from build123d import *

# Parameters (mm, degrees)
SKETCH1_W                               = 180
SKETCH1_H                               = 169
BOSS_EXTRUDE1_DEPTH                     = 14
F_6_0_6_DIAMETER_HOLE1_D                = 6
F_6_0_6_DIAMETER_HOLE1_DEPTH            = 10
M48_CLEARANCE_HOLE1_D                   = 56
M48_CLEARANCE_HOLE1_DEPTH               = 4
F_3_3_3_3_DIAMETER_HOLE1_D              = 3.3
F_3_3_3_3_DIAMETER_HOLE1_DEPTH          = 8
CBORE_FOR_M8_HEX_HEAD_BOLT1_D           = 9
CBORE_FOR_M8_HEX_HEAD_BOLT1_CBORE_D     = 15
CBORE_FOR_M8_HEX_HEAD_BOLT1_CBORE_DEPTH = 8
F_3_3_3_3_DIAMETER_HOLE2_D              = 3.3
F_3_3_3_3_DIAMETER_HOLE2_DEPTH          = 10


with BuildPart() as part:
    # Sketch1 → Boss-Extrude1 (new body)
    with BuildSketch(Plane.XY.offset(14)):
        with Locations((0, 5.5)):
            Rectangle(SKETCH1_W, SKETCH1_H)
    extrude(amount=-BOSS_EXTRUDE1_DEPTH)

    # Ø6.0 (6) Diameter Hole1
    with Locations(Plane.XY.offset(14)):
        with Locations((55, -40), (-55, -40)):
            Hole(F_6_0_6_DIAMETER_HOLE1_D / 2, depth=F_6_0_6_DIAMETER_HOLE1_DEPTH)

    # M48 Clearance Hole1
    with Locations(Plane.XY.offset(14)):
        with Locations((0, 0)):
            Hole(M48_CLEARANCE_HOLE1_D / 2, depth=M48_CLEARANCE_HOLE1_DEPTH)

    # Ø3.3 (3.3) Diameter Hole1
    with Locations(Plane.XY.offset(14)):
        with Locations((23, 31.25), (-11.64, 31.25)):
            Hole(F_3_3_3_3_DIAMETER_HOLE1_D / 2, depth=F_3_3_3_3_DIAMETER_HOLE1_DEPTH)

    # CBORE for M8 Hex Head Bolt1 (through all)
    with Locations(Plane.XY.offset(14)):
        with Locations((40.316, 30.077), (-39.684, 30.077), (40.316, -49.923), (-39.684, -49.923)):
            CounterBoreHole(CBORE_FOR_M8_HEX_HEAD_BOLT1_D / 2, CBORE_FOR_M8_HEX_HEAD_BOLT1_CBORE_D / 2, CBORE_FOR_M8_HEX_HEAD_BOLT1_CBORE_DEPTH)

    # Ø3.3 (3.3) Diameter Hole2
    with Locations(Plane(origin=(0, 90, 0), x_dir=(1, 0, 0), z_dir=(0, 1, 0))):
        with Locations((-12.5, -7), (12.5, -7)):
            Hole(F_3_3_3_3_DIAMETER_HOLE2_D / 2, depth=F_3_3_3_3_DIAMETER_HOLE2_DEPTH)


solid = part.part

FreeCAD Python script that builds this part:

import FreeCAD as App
import Part
import Sketcher
Q = App.Units.Quantity

doc = App.newDocument("Part")
params = doc.addObject("Spreadsheet::Sheet", "Params")
for row, (alias, value) in enumerate([
    ("sketch1_width", "180 mm"),
    ("sketch1_height", "169 mm"),
    ("pad1_length", "14 mm"),
    ("sketch2_diameter", "6 mm"),
    ("hole_diameter", "6 mm"),
    ("hole_depth", "10 mm"),
    ("sketch3_diameter", "56 mm"),
    ("hole2_diameter", "56 mm"),
    ("hole2_depth", "4 mm"),
    ("sketch4_diameter", "3.3 mm"),
    ("hole3_diameter", "3.3 mm"),
    ("hole3_depth", "8 mm"),
    ("sketch5_diameter", "9 mm"),
    ("hole4_diameter", "9 mm"),
    ("hole4_cbore_diameter", "15 mm"),
    ("hole4_cbore_depth", "8 mm"),
    ("sketch6_diameter", "3.3 mm"),
    ("hole5_diameter", "3.3 mm"),
    ("hole5_depth", "10 mm"),
], start=1):
    params.set(f"A{row}", alias)
    params.set(f"B{row}", "=" + value)
    params.setAlias(f"B{row}", alias)

body = doc.addObject("PartDesign::Body", "Body")

sketch1 = body.newObject("Sketcher::SketchObject", "Sketch")
sketch1.AttachmentSupport = (doc.getObject("XY_Plane"), [""])
sketch1.MapMode = "FlatFace"
sketch1.AttachmentOffset = App.Placement(App.Vector(0, 0, 14), App.Rotation())
sketch1.addGeometry([
    Part.LineSegment(App.Vector(-90, 90, 0), App.Vector(-90, -79, 0)),
    Part.LineSegment(App.Vector(-90, -79, 0), App.Vector(90, -79, 0)),
    Part.LineSegment(App.Vector(90, -79, 0), App.Vector(90, 90, 0)),
    Part.LineSegment(App.Vector(90, 90, 0), App.Vector(-90, 90, 0)),
], False)
sketch1.addConstraint([
    Sketcher.Constraint("Coincident", 0, 2, 1, 1),
    Sketcher.Constraint("Coincident", 1, 2, 2, 1),
    Sketcher.Constraint("Coincident", 2, 2, 3, 1),
    Sketcher.Constraint("Coincident", 3, 2, 0, 1),
    Sketcher.Constraint("Vertical", 0),
    Sketcher.Constraint("Horizontal", 1),
    Sketcher.Constraint("Vertical", 2),
    Sketcher.Constraint("Horizontal", 3),
    Sketcher.Constraint("DistanceX", 1, 1, 1, 2, Q("180 mm")),
    Sketcher.Constraint("DistanceY", 0, 2, 0, 1, Q("169 mm")),
    Sketcher.Constraint("DistanceX", 0, 2, -1, 1, Q("90 mm")),
    Sketcher.Constraint("DistanceY", 0, 2, -1, 1, Q("79 mm")),
])
sketch1.setExpression("Constraints[8]", "Params.sketch1_width")
sketch1.setExpression("Constraints[9]", "Params.sketch1_height")
pad1 = body.newObject("PartDesign::Pad", "Pad")
pad1.Profile = sketch1
pad1.setExpression("Length", "Params.pad1_length")
pad1.Reversed = True

sketch2 = body.newObject("Sketcher::SketchObject", "Sketch001")
sketch2.AttachmentSupport = (doc.getObject("XY_Plane"), [""])
sketch2.MapMode = "FlatFace"
sketch2.AttachmentOffset = App.Placement(App.Vector(0, 0, 14), App.Rotation())
sketch2.addGeometry([
    Part.Circle(App.Vector(55, -40, 0), App.Vector(0, 0, 1), 3),
    Part.Circle(App.Vector(-55, -40, 0), App.Vector(0, 0, 1), 3),
], False)
sketch2.addConstraint([
    Sketcher.Constraint("Equal", 0, 1),
    Sketcher.Constraint("Symmetric", 0, 3, 1, 3, -2),
    Sketcher.Constraint("Diameter", 0, Q("6 mm")),
    Sketcher.Constraint("DistanceX", -1, 1, 0, 3, Q("55 mm")),
    Sketcher.Constraint("DistanceY", 0, 3, -1, 1, Q("40 mm")),
])
sketch2.setExpression("Constraints[2]", "Params.sketch2_diameter")
doc.recompute()
hole = body.newObject("PartDesign::Hole", "Hole")
hole.Profile = sketch2
hole.ThreadType = "None"
hole.setExpression("Diameter", "Params.hole_diameter")
hole.DepthType = "Dimension"
hole.setExpression("Depth", "Params.hole_depth")
hole.DrillPoint = "Flat"

sketch3 = body.newObject("Sketcher::SketchObject", "Sketch002")
sketch3.AttachmentSupport = (doc.getObject("XY_Plane"), [""])
sketch3.MapMode = "FlatFace"
sketch3.AttachmentOffset = App.Placement(App.Vector(0, 0, 14), App.Rotation())
sketch3.addGeometry(Part.Circle(App.Vector(0, 0, 0), App.Vector(0, 0, 1), 28), False)
sketch3.addConstraint([
    Sketcher.Constraint("Coincident", 0, 3, -1, 1),
    Sketcher.Constraint("Diameter", 0, Q("56 mm")),
])
sketch3.setExpression("Constraints[1]", "Params.sketch3_diameter")
doc.recompute()
hole2 = body.newObject("PartDesign::Hole", "Hole001")
hole2.Profile = sketch3
hole2.ThreadType = "None"
hole2.setExpression("Diameter", "Params.hole2_diameter")
hole2.DepthType = "Dimension"
hole2.setExpression("Depth", "Params.hole2_depth")
hole2.DrillPoint = "Flat"

sketch4 = body.newObject("Sketcher::SketchObject", "Sketch003")
sketch4.AttachmentSupport = (doc.getObject("XY_Plane"), [""])
sketch4.MapMode = "FlatFace"
sketch4.AttachmentOffset = App.Placement(App.Vector(0, 0, 14), App.Rotation())
sketch4.addGeometry([
    Part.Circle(App.Vector(23, 31.25, 0), App.Vector(0, 0, 1), 1.65),
    Part.Circle(App.Vector(-11.64, 31.25, 0), App.Vector(0, 0, 1), 1.65),
], False)
sketch4.addConstraint([
    Sketcher.Constraint("Equal", 0, 1),
    Sketcher.Constraint("Horizontal", 0, 3, 1, 3),
    Sketcher.Constraint("Diameter", 0, Q("3.3 mm")),
    Sketcher.Constraint("DistanceX", -1, 1, 0, 3, Q("23 mm")),
    Sketcher.Constraint("DistanceY", -1, 1, 0, 3, Q("31.25 mm")),
    Sketcher.Constraint("DistanceX", 1, 3, -1, 1, Q("11.64 mm")),
])
sketch4.setExpression("Constraints[2]", "Params.sketch4_diameter")
doc.recompute()
hole3 = body.newObject("PartDesign::Hole", "Hole002")
hole3.Profile = sketch4
hole3.ThreadType = "None"
hole3.setExpression("Diameter", "Params.hole3_diameter")
hole3.DepthType = "Dimension"
hole3.setExpression("Depth", "Params.hole3_depth")
hole3.DrillPoint = "Flat"

sketch5 = body.newObject("Sketcher::SketchObject", "Sketch004")
sketch5.AttachmentSupport = (doc.getObject("XY_Plane"), [""])
sketch5.MapMode = "FlatFace"
sketch5.AttachmentOffset = App.Placement(App.Vector(0, 0, 14), App.Rotation())
sketch5.addGeometry([
    Part.Circle(App.Vector(40.316, 30.077, 0), App.Vector(0, 0, 1), 4.5),
    Part.Circle(App.Vector(-39.684, 30.077, 0), App.Vector(0, 0, 1), 4.5),
    Part.Circle(App.Vector(40.316, -49.923, 0), App.Vector(0, 0, 1), 4.5),
    Part.Circle(App.Vector(-39.684, -49.923, 0), App.Vector(0, 0, 1), 4.5),
], False)
sketch5.addConstraint([
    Sketcher.Constraint("Equal", 0, 1),
    Sketcher.Constraint("Equal", 1, 2),
    Sketcher.Constraint("Equal", 2, 3),
    Sketcher.Constraint("Horizontal", 0, 3, 1, 3),
    Sketcher.Constraint("Horizontal", 2, 3, 3, 3),
    Sketcher.Constraint("Vertical", 0, 3, 2, 3),
    Sketcher.Constraint("Vertical", 1, 3, 3, 3),
    Sketcher.Constraint("Diameter", 0, Q("9 mm")),
    Sketcher.Constraint("DistanceX", 1, 3, 0, 3, Q("80 mm")),
    Sketcher.Constraint("DistanceY", 2, 3, 0, 3, Q("80 mm")),
    Sketcher.Constraint("DistanceX", -1, 1, 0, 3, Q("40.316 mm")),
    Sketcher.Constraint("DistanceY", -1, 1, 0, 3, Q("30.077 mm")),
])
sketch5.setExpression("Constraints[7]", "Params.sketch5_diameter")
doc.recompute()
hole4 = body.newObject("PartDesign::Hole", "Hole003")
hole4.Profile = sketch5
hole4.ThreadType = "None"
hole4.setExpression("Diameter", "Params.hole4_diameter")
hole4.DepthType = "ThroughAll"
hole4.HoleCutType = "Counterbore"
hole4.setExpression("HoleCutDiameter", "Params.hole4_cbore_diameter")
hole4.setExpression("HoleCutDepth", "Params.hole4_cbore_depth")

sketch6 = body.newObject("Sketcher::SketchObject", "Sketch005")
sketch6.AttachmentSupport = (doc.getObject("XZ_Plane"), [""])
sketch6.MapMode = "FlatFace"
sketch6.AttachmentOffset = App.Placement(App.Vector(0, 0, -90), App.Rotation())
sketch6.addGeometry([
    Part.Circle(App.Vector(-12.5, 7, 0), App.Vector(0, 0, 1), 1.65),
    Part.Circle(App.Vector(12.5, 7, 0), App.Vector(0, 0, 1), 1.65),
], False)
sketch6.addConstraint([
    Sketcher.Constraint("Equal", 0, 1),
    Sketcher.Constraint("Symmetric", 0, 3, 1, 3, -2),
    Sketcher.Constraint("Diameter", 0, Q("3.3 mm")),
    Sketcher.Constraint("DistanceY", -1, 1, 0, 3, Q("7 mm")),
    Sketcher.Constraint("DistanceX", 0, 3, 1, 3, Q("25 mm")),
])
sketch6.setExpression("Constraints[2]", "Params.sketch6_diameter")
doc.recompute()
hole5 = body.newObject("PartDesign::Hole", "Hole004")
hole5.Profile = sketch6
hole5.ThreadType = "None"
hole5.setExpression("Diameter", "Params.hole5_diameter")
hole5.DepthType = "Dimension"
hole5.setExpression("Depth", "Params.hole5_depth")
hole5.DrillPoint = "Flat"
hole5.Reversed = True

doc.recompute()
